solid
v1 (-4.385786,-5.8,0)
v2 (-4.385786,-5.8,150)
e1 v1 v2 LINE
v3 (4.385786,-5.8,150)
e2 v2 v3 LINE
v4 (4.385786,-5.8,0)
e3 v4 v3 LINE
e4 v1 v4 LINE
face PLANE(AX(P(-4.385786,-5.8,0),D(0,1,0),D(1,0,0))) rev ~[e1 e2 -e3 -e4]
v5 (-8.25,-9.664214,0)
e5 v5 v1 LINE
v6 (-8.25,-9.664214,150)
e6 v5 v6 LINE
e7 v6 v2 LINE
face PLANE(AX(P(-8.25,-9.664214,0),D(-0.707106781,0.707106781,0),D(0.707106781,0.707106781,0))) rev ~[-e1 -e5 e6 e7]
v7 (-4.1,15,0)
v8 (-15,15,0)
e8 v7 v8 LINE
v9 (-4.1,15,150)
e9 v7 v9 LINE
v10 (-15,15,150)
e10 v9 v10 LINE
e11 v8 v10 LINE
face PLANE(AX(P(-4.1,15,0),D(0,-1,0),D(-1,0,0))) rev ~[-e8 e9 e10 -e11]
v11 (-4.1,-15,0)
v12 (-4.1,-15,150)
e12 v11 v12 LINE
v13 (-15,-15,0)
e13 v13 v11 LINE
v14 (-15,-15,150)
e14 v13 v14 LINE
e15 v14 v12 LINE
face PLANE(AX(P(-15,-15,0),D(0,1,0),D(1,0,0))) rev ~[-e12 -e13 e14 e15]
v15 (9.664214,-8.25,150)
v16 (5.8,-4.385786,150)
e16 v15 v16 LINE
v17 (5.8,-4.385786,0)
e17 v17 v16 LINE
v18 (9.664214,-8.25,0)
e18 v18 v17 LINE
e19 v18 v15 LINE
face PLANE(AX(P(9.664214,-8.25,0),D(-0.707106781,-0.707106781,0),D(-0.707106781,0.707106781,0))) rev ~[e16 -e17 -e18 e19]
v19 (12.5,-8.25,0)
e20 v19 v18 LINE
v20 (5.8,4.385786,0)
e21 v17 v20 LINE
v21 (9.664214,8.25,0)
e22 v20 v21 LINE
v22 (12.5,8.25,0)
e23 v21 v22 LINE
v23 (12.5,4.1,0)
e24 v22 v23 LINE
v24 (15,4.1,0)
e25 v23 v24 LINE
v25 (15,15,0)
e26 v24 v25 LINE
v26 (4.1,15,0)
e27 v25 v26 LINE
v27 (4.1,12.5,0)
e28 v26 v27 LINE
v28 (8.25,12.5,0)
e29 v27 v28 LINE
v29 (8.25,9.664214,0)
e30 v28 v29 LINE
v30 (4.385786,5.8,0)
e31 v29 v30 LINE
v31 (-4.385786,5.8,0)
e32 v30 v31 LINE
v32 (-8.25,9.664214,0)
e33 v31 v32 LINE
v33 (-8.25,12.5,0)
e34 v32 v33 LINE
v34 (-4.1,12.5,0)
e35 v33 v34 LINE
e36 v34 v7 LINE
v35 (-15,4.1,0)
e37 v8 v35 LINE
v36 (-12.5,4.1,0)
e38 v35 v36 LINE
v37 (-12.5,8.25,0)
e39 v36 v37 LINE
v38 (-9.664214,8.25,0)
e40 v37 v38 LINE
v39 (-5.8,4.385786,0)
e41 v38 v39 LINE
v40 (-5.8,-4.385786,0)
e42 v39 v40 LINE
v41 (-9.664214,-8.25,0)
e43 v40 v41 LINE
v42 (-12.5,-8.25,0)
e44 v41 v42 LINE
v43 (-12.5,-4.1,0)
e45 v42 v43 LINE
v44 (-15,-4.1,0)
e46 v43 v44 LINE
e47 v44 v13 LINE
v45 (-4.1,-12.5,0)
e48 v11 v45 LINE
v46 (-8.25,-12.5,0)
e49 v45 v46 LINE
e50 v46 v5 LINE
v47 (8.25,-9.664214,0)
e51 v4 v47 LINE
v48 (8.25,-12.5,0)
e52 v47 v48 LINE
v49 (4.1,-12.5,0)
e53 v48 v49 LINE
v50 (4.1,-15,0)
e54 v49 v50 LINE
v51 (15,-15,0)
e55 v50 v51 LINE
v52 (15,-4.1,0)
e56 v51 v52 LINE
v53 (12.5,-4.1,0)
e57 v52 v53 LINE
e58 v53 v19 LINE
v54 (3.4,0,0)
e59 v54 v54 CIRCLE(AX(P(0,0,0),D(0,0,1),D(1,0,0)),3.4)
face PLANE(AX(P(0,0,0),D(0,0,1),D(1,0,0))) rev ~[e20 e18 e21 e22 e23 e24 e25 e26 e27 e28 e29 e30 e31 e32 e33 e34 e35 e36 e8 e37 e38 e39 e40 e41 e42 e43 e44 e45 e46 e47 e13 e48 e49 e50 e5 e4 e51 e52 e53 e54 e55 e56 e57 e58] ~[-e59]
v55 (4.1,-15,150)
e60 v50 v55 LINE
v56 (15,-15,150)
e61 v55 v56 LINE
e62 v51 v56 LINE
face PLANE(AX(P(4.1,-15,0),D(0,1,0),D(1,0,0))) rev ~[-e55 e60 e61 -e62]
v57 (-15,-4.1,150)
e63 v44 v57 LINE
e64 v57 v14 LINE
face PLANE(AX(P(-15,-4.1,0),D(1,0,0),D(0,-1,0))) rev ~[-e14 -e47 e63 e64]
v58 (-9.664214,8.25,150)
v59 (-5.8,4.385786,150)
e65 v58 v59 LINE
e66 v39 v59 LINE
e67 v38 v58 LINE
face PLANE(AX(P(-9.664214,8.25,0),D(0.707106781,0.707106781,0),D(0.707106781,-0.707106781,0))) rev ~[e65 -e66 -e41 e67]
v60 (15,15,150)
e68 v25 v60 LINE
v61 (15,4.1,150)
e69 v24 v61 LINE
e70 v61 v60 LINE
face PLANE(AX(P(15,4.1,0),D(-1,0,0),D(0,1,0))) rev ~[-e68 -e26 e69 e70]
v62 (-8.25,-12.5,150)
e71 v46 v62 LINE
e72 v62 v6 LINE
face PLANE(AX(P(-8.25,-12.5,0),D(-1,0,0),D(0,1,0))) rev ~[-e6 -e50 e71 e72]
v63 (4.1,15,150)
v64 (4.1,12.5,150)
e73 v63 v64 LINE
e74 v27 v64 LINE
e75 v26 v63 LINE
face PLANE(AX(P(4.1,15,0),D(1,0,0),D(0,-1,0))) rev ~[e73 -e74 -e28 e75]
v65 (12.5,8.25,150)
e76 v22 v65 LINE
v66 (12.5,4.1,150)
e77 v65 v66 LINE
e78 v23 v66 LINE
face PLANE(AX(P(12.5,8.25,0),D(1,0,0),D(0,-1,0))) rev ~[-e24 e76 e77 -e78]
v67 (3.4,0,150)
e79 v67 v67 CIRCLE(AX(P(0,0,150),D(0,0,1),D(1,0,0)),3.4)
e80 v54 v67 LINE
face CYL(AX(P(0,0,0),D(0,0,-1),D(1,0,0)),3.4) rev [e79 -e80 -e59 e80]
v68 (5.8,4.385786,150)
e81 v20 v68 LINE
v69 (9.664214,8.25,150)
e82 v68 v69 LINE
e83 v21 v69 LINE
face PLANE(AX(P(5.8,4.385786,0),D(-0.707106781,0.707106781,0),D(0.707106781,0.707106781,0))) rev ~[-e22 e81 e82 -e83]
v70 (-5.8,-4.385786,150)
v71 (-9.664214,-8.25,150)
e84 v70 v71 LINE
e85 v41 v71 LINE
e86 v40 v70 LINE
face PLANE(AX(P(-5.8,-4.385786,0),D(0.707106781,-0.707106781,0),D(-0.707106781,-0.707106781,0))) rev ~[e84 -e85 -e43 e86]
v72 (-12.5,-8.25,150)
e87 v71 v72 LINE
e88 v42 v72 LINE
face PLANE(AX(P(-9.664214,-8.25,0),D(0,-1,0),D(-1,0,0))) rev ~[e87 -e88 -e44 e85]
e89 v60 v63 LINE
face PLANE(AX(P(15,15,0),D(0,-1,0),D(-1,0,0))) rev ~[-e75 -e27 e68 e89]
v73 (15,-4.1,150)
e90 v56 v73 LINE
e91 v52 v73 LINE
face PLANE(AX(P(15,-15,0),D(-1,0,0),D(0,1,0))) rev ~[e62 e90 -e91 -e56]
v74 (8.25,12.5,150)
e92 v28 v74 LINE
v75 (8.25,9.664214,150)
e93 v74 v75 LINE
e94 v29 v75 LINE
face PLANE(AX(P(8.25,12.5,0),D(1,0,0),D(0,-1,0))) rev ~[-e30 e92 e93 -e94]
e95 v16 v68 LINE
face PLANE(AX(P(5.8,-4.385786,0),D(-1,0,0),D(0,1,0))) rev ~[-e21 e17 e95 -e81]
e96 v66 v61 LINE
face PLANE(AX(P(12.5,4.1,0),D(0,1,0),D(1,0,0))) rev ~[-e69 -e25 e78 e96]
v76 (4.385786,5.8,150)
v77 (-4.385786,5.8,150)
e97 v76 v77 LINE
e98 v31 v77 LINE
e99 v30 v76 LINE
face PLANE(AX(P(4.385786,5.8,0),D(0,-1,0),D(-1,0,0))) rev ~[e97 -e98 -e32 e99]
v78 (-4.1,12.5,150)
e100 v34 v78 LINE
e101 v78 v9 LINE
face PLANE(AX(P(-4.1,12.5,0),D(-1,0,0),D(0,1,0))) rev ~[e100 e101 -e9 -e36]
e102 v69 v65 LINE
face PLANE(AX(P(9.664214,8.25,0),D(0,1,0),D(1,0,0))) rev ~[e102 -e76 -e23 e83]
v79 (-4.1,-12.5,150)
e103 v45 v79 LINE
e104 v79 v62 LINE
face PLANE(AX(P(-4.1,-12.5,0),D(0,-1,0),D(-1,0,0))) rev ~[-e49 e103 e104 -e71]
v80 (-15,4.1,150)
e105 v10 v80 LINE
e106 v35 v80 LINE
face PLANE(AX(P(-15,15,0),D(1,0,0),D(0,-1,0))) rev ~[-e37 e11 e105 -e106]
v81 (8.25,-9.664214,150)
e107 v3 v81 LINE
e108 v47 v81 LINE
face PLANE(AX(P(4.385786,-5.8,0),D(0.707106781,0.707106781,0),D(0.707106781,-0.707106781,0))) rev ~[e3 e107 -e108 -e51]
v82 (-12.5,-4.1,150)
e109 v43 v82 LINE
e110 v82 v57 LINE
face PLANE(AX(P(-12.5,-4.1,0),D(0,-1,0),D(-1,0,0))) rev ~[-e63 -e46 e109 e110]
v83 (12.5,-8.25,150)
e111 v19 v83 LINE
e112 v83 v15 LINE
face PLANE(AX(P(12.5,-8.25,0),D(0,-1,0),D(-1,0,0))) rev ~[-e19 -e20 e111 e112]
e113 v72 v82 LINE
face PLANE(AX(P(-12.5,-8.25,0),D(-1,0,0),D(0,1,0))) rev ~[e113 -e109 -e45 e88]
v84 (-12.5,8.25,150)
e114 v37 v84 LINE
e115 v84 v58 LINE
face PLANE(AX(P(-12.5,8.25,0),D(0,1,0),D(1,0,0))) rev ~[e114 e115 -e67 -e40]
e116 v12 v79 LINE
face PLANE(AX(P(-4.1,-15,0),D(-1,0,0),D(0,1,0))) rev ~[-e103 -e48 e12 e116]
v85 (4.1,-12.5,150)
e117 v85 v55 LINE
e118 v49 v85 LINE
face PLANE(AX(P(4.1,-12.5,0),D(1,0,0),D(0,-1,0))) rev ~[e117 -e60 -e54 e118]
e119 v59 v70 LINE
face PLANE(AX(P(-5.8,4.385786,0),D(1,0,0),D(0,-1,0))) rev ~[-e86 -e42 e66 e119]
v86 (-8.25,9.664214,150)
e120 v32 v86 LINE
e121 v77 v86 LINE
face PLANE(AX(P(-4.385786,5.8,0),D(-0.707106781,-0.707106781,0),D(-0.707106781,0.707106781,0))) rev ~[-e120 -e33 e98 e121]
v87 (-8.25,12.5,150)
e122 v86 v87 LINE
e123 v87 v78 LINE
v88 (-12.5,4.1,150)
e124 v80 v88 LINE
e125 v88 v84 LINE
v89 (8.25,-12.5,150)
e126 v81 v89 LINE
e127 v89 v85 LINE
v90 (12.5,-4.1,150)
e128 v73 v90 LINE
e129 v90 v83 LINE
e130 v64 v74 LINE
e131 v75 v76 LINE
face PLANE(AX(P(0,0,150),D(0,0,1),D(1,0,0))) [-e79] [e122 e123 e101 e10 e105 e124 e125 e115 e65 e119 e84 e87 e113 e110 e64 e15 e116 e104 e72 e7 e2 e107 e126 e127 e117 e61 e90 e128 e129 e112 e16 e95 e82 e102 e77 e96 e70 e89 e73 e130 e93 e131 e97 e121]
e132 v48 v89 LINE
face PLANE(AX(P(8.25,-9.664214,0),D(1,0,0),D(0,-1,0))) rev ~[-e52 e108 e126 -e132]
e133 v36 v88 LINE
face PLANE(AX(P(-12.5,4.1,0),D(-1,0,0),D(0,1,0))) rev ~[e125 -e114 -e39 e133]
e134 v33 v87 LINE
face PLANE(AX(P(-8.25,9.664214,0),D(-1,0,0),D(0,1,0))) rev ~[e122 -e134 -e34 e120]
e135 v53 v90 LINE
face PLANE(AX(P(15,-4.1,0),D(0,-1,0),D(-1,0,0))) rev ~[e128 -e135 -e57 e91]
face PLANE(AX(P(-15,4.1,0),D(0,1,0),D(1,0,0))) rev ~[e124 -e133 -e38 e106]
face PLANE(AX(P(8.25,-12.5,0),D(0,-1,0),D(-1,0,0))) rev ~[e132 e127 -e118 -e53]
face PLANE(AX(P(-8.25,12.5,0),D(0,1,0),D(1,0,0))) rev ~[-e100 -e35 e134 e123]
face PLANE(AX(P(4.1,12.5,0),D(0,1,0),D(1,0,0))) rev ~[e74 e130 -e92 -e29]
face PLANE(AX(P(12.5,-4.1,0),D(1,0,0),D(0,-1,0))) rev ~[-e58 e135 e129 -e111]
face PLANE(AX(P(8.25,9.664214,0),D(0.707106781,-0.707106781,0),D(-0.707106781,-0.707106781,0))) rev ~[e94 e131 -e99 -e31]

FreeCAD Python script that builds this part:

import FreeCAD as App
import Part
import Sketcher
from FreeCAD import Vector
Q = App.Units.Quantity

doc = App.newDocument("Part")
body = doc.addObject("PartDesign::Body", "Body")

# Sketch on XY plane
sketch1 = body.newObject("Sketcher::SketchObject", "Sketch")
sketch1.AttachmentSupport = (doc.getObject("XY_Plane"), [""])
sketch1.MapMode = "FlatFace"
sketch1.addGeometry([
    Part.LineSegment(Vector(-4.1, 12.5, 0), Vector(-4.1, 15, 0)),  # 0
    Part.LineSegment(Vector(-4.1, 15, 0), Vector(-15, 15, 0)),  # 1
    Part.LineSegment(Vector(-15, 15, 0), Vector(-15, 4.1, 0)),  # 2
    Part.LineSegment(Vector(-15, 4.1, 0), Vector(-12.5, 4.1, 0)),  # 3
    Part.LineSegment(Vector(-12.5, 4.1, 0), Vector(-12.5, 8.2, 0)),  # 4
    Part.LineSegment(Vector(-12.5, 8.2, 0), Vector(-9.7, 8.2, 0)),  # 5
    Part.LineSegment(Vector(-9.7, 8.2, 0), Vector(-5.8, 4.4, 0)),  # 6
    Part.LineSegment(Vector(-5.8, 4.4, 0), Vector(-5.8, -4.4, 0)),  # 7
    Part.LineSegment(Vector(-5.8, -4.4, 0), Vector(-9.7, -8.2, 0)),  # 8
    Part.LineSegment(Vector(-9.7, -8.2, 0), Vector(-12.5, -8.2, 0)),  # 9
    Part.LineSegment(Vector(-12.5, -8.2, 0), Vector(-12.5, -4.1, 0)),  # 10
    Part.LineSegment(Vector(-12.5, -4.1, 0), Vector(-15, -4.1, 0)),  # 11
    Part.LineSegment(Vector(-15, -4.1, 0), Vector(-15, -15, 0)),  # 12
    Part.LineSegment(Vector(-15, -15, 0), Vector(-4.1, -15, 0)),  # 13
    Part.LineSegment(Vector(-4.1, -15, 0), Vector(-4.1, -12.5, 0)),  # 14
    Part.LineSegment(Vector(-4.1, -12.5, 0), Vector(-8.2, -12.5, 0)),  # 15
    Part.LineSegment(Vector(-8.2, -12.5, 0), Vector(-8.2, -9.7, 0)),  # 16
    Part.LineSegment(Vector(-8.2, -9.7, 0), Vector(-4.4, -5.8, 0)),  # 17
    Part.LineSegment(Vector(-4.4, -5.8, 0), Vector(4.4, -5.8, 0)),  # 18
    Part.LineSegment(Vector(4.4, -5.8, 0), Vector(8.2, -9.7, 0)),  # 19
    Part.LineSegment(Vector(8.2, -9.7, 0), Vector(8.2, -12.5, 0)),  # 20
    Part.LineSegment(Vector(8.2, -12.5, 0), Vector(4.1, -12.5, 0)),  # 21
    Part.LineSegment(Vector(4.1, -12.5, 0), Vector(4.1, -15, 0)),  # 22
    Part.LineSegment(Vector(4.1, -15, 0), Vector(15, -15, 0)),  # 23
    Part.LineSegment(Vector(15, -15, 0), Vector(15, -4.1, 0)),  # 24
    Part.LineSegment(Vector(15, -4.1, 0), Vector(12.5, -4.1, 0)),  # 25
    Part.LineSegment(Vector(12.5, -4.1, 0), Vector(12.5, -8.2, 0)),  # 26
    Part.LineSegment(Vector(12.5, -8.2, 0), Vector(9.7, -8.2, 0)),  # 27
    Part.LineSegment(Vector(9.7, -8.2, 0), Vector(5.8, -4.4, 0)),  # 28
    Part.LineSegment(Vector(5.8, -4.4, 0), Vector(5.8, 4.4, 0)),  # 29
    Part.LineSegment(Vector(5.8, 4.4, 0), Vector(9.7, 8.2, 0)),  # 30
    Part.LineSegment(Vector(9.7, 8.2, 0), Vector(12.5, 8.2, 0)),  # 31
    Part.LineSegment(Vector(12.5, 8.2, 0), Vector(12.5, 4.1, 0)),  # 32
    Part.LineSegment(Vector(12.5, 4.1, 0), Vector(15, 4.1, 0)),  # 33
    Part.LineSegment(Vector(15, 4.1, 0), Vector(15, 15, 0)),  # 34
    Part.LineSegment(Vector(15, 15, 0), Vector(4.1, 15, 0)),  # 35
    Part.LineSegment(Vector(4.1, 15, 0), Vector(4.1, 12.5, 0)),  # 36
    Part.LineSegment(Vector(4.1, 12.5, 0), Vector(8.2, 12.5, 0)),  # 37
    Part.LineSegment(Vector(8.2, 12.5, 0), Vector(8.2, 9.7, 0)),  # 38
    Part.LineSegment(Vector(8.2, 9.7, 0), Vector(4.4, 5.8, 0)),  # 39
    Part.LineSegment(Vector(4.4, 5.8, 0), Vector(-4.4, 5.8, 0)),  # 40
    Part.LineSegment(Vector(-4.4, 5.8, 0), Vector(-8.2, 9.7, 0)),  # 41
    Part.LineSegment(Vector(-8.2, 9.7, 0), Vector(-8.2, 12.5, 0)),  # 42
    Part.LineSegment(Vector(-8.2, 12.5, 0), Vector(-4.1, 12.5, 0)),  # 43
    Part.Circle(Vector(0, 0, 0), Vector(0, 0, 1), 3.4),  # 44
], False)
sketch1.addConstraint([
    Sketcher.Constraint("Coincident", 0, 2, 1, 1),
    Sketcher.Constraint("Coincident", 1, 2, 2, 1),
    Sketcher.Constraint("Coincident", 2, 2, 3, 1),
    Sketcher.Constraint("Coincident", 3, 2, 4, 1),
    Sketcher.Constraint("Coincident", 4, 2, 5, 1),
    Sketcher.Constraint("Coincident", 5, 2, 6, 1),
    Sketcher.Constraint("Coincident", 6, 2, 7, 1),
    Sketcher.Constraint("Coincident", 7, 2, 8, 1),
    Sketcher.Constraint("Coincident", 8, 2, 9, 1),
    Sketcher.Constraint("Coincident", 9, 2, 10, 1),
    Sketcher.Constraint("Coincident", 10, 2, 11, 1),
    Sketcher.Constraint("Coincident", 11, 2, 12, 1),
    Sketcher.Constraint("Coincident", 12, 2, 13, 1),
    Sketcher.Constraint("Coincident", 13, 2, 14, 1),
    Sketcher.Constraint("Coincident", 14, 2, 15, 1),
    Sketcher.Constraint("Coincident", 15, 2, 16, 1),
    Sketcher.Constraint("Coincident", 16, 2, 17, 1),
    Sketcher.Constraint("Coincident", 17, 2, 18, 1),
    Sketcher.Constraint("Coincident", 18, 2, 19, 1),
    Sketcher.Constraint("Coincident", 19, 2, 20, 1),
    Sketcher.Constraint("Coincident", 20, 2, 21, 1),
    Sketcher.Constraint("Coincident", 21, 2, 22, 1),
    Sketcher.Constraint("Coincident", 22, 2, 23, 1),
    Sketcher.Constraint("Coincident", 23, 2, 24, 1),
    Sketcher.Constraint("Coincident", 24, 2, 25, 1),
    Sketcher.Constraint("Coincident", 25, 2, 26, 1),
    Sketcher.Constraint("Coincident", 26, 2, 27, 1),
    Sketcher.Constraint("Coincident", 27, 2, 28, 1),
    Sketcher.Constraint("Coincident", 28, 2, 29, 1),
    Sketcher.Constraint("Coincident", 29, 2, 30, 1),
    Sketcher.Constraint("Coincident", 30, 2, 31, 1),
    Sketcher.Constraint("Coincident", 31, 2, 32, 1),
    Sketcher.Constraint("Coincident", 32, 2, 33, 1),
    Sketcher.Constraint("Coincident", 33, 2, 34, 1),
    Sketcher.Constraint("Coincident", 34, 2, 35, 1),
    Sketcher.Constraint("Coincident", 35, 2, 36, 1),
    Sketcher.Constraint("Coincident", 36, 2, 37, 1),
    Sketcher.Constraint("Coincident", 37, 2, 38, 1),
    Sketcher.Constraint("Coincident", 38, 2, 39, 1),
    Sketcher.Constraint("Coincident", 39, 2, 40, 1),
    Sketcher.Constraint("Coincident", 40, 2, 41, 1),
    Sketcher.Constraint("Coincident", 41, 2, 42, 1),
    Sketcher.Constraint("Coincident", 42, 2, 43, 1),
    Sketcher.Constraint("Coincident", 43, 2, 0, 1),
    Sketcher.Constraint("Vertical", 0),
    Sketcher.Constraint("Horizontal", 1),
    Sketcher.Constraint("Vertical", 2),
    Sketcher.Constraint("Horizontal", 3),
    Sketcher.Constraint("Vertical", 4),
    Sketcher.Constraint("Horizontal", 5),
    Sketcher.Constraint("Vertical", 7),
    Sketcher.Constraint("Horizontal", 9),
    Sketcher.Constraint("Vertical", 10),
    Sketcher.Constraint("Horizontal", 11),
    Sketcher.Constraint("Vertical", 12),
    Sketcher.Constraint("Horizontal", 13),
    Sketcher.Constraint("Vertical", 14),
    Sketcher.Constraint("Horizontal", 15),
    Sketcher.Constraint("Vertical", 16),
    Sketcher.Constraint("Horizontal", 18),
    Sketcher.Constraint("Vertical", 20),
    Sketcher.Constraint("Horizontal", 21),
    Sketcher.Constraint("Vertical", 22),
    Sketcher.Constraint("Horizontal", 23),
    Sketcher.Constraint("Vertical", 24),
    Sketcher.Constraint("Horizontal", 25),
    Sketcher.Constraint("Vertical", 26),
    Sketcher.Constraint("Horizontal", 27),
    Sketcher.Constraint("Vertical", 29),
    Sketcher.Constraint("Horizontal", 31),
    Sketcher.Constraint("Vertical", 32),
    Sketcher.Constraint("Horizontal", 33),
    Sketcher.Constraint("Vertical", 34),
    Sketcher.Constraint("Horizontal", 35),
    Sketcher.Constraint("Vertical", 36),
    Sketcher.Constraint("Horizontal", 37),
    Sketcher.Constraint("Vertical", 38),
    Sketcher.Constraint("Horizontal", 40),
    Sketcher.Constraint("Vertical", 42),
    Sketcher.Constraint("Horizontal", 43),
    Sketcher.Constraint("Coincident", 44, 3, -1, 1),
    Sketcher.Constraint("Symmetric", 0, 2, 22, 2, -1, 1),
    Sketcher.Constraint("Symmetric", 2, 2, 24, 2, -1, 1),
    Sketcher.Constraint("Symmetric", 4, 2, 26, 2, -1, 1),
    Sketcher.Constraint("Symmetric", 6, 2, 28, 2, -1, 1),
    Sketcher.Constraint("Symmetric", 8, 2, 30, 2, -1, 1),
    Sketcher.Constraint("Symmetric", 10, 2, 32, 2, -1, 1),
    Sketcher.Constraint("Symmetric", 12, 2, 34, 2, -1, 1),
    Sketcher.Constraint("Symmetric", 14, 2, 36, 2, -1, 1),
    Sketcher.Constraint("Symmetric", 16, 2, 38, 2, -1, 1),
    Sketcher.Constraint("Symmetric", 17, 2, 39, 2, -1, 1),
    Sketcher.Constraint("Symmetric", 19, 2, 41, 2, -1, 1),
    Sketcher.Constraint("Symmetric", 16, 2, 19, 2, -2),
    Sketcher.Constraint("Symmetric", 14, 2, 21, 2, -2),
    Sketcher.Constraint("Symmetric", 12, 2, 23, 2, -2),
    Sketcher.Constraint("Symmetric", 10, 2, 25, 2, -2),
    Sketcher.Constraint("Symmetric", 8, 2, 27, 2, -2),
    Sketcher.Constraint("Perpendicular", 6, 8),
    Sketcher.Constraint("Parallel", 8, 17),
    Sketcher.Constraint("Perpendicular", 17, 19),
    Sketcher.Constraint("Parallel", 19, 28),
    Sketcher.Constraint("Perpendicular", 28, 30),
    Sketcher.Constraint("Perpendicular", 39, 41),
    Sketcher.Constraint("Horizontal", 7, 2, 28, 2),
    Sketcher.Constraint("Horizontal", 37, 2, 42, 2),
    Sketcher.Constraint("Equal", 33, 0),
    Sketcher.Constraint("Equal", 35, 2),
    Sketcher.Constraint("Equal", 43, 4),
    Sketcher.Constraint("Equal", 40, 7),
    Sketcher.Constraint("Equal", 31, 16),
    Sketcher.Constraint("Equal", 8, 17),
    Sketcher.Constraint("Diameter", 44, Q("6.8 mm")),
    Sketcher.Constraint("DistanceX", 1, 2, 1, 1, Q("10.9 mm")),
    Sketcher.Constraint("DistanceX", 3, 1, 3, 2, Q("2.5 mm")),
    Sketcher.Constraint("DistanceY", -1, 1, 0, 2, Q("15 mm")),
    Sketcher.Constraint("DistanceX", 15, 2, 15, 1, Q("4.15 mm")),
    Sketcher.Constraint("DistanceX", 6, 2, -1, 1, Q("5.8 mm")),
    Sketcher.Constraint("DistanceX", 5, 1, 5, 2, Q("2.835786 mm")),
])
pad1 = body.newObject("PartDesign::Pad", "Pad")
pad1.Profile = sketch1
pad1.Length = 150

doc.recompute()
